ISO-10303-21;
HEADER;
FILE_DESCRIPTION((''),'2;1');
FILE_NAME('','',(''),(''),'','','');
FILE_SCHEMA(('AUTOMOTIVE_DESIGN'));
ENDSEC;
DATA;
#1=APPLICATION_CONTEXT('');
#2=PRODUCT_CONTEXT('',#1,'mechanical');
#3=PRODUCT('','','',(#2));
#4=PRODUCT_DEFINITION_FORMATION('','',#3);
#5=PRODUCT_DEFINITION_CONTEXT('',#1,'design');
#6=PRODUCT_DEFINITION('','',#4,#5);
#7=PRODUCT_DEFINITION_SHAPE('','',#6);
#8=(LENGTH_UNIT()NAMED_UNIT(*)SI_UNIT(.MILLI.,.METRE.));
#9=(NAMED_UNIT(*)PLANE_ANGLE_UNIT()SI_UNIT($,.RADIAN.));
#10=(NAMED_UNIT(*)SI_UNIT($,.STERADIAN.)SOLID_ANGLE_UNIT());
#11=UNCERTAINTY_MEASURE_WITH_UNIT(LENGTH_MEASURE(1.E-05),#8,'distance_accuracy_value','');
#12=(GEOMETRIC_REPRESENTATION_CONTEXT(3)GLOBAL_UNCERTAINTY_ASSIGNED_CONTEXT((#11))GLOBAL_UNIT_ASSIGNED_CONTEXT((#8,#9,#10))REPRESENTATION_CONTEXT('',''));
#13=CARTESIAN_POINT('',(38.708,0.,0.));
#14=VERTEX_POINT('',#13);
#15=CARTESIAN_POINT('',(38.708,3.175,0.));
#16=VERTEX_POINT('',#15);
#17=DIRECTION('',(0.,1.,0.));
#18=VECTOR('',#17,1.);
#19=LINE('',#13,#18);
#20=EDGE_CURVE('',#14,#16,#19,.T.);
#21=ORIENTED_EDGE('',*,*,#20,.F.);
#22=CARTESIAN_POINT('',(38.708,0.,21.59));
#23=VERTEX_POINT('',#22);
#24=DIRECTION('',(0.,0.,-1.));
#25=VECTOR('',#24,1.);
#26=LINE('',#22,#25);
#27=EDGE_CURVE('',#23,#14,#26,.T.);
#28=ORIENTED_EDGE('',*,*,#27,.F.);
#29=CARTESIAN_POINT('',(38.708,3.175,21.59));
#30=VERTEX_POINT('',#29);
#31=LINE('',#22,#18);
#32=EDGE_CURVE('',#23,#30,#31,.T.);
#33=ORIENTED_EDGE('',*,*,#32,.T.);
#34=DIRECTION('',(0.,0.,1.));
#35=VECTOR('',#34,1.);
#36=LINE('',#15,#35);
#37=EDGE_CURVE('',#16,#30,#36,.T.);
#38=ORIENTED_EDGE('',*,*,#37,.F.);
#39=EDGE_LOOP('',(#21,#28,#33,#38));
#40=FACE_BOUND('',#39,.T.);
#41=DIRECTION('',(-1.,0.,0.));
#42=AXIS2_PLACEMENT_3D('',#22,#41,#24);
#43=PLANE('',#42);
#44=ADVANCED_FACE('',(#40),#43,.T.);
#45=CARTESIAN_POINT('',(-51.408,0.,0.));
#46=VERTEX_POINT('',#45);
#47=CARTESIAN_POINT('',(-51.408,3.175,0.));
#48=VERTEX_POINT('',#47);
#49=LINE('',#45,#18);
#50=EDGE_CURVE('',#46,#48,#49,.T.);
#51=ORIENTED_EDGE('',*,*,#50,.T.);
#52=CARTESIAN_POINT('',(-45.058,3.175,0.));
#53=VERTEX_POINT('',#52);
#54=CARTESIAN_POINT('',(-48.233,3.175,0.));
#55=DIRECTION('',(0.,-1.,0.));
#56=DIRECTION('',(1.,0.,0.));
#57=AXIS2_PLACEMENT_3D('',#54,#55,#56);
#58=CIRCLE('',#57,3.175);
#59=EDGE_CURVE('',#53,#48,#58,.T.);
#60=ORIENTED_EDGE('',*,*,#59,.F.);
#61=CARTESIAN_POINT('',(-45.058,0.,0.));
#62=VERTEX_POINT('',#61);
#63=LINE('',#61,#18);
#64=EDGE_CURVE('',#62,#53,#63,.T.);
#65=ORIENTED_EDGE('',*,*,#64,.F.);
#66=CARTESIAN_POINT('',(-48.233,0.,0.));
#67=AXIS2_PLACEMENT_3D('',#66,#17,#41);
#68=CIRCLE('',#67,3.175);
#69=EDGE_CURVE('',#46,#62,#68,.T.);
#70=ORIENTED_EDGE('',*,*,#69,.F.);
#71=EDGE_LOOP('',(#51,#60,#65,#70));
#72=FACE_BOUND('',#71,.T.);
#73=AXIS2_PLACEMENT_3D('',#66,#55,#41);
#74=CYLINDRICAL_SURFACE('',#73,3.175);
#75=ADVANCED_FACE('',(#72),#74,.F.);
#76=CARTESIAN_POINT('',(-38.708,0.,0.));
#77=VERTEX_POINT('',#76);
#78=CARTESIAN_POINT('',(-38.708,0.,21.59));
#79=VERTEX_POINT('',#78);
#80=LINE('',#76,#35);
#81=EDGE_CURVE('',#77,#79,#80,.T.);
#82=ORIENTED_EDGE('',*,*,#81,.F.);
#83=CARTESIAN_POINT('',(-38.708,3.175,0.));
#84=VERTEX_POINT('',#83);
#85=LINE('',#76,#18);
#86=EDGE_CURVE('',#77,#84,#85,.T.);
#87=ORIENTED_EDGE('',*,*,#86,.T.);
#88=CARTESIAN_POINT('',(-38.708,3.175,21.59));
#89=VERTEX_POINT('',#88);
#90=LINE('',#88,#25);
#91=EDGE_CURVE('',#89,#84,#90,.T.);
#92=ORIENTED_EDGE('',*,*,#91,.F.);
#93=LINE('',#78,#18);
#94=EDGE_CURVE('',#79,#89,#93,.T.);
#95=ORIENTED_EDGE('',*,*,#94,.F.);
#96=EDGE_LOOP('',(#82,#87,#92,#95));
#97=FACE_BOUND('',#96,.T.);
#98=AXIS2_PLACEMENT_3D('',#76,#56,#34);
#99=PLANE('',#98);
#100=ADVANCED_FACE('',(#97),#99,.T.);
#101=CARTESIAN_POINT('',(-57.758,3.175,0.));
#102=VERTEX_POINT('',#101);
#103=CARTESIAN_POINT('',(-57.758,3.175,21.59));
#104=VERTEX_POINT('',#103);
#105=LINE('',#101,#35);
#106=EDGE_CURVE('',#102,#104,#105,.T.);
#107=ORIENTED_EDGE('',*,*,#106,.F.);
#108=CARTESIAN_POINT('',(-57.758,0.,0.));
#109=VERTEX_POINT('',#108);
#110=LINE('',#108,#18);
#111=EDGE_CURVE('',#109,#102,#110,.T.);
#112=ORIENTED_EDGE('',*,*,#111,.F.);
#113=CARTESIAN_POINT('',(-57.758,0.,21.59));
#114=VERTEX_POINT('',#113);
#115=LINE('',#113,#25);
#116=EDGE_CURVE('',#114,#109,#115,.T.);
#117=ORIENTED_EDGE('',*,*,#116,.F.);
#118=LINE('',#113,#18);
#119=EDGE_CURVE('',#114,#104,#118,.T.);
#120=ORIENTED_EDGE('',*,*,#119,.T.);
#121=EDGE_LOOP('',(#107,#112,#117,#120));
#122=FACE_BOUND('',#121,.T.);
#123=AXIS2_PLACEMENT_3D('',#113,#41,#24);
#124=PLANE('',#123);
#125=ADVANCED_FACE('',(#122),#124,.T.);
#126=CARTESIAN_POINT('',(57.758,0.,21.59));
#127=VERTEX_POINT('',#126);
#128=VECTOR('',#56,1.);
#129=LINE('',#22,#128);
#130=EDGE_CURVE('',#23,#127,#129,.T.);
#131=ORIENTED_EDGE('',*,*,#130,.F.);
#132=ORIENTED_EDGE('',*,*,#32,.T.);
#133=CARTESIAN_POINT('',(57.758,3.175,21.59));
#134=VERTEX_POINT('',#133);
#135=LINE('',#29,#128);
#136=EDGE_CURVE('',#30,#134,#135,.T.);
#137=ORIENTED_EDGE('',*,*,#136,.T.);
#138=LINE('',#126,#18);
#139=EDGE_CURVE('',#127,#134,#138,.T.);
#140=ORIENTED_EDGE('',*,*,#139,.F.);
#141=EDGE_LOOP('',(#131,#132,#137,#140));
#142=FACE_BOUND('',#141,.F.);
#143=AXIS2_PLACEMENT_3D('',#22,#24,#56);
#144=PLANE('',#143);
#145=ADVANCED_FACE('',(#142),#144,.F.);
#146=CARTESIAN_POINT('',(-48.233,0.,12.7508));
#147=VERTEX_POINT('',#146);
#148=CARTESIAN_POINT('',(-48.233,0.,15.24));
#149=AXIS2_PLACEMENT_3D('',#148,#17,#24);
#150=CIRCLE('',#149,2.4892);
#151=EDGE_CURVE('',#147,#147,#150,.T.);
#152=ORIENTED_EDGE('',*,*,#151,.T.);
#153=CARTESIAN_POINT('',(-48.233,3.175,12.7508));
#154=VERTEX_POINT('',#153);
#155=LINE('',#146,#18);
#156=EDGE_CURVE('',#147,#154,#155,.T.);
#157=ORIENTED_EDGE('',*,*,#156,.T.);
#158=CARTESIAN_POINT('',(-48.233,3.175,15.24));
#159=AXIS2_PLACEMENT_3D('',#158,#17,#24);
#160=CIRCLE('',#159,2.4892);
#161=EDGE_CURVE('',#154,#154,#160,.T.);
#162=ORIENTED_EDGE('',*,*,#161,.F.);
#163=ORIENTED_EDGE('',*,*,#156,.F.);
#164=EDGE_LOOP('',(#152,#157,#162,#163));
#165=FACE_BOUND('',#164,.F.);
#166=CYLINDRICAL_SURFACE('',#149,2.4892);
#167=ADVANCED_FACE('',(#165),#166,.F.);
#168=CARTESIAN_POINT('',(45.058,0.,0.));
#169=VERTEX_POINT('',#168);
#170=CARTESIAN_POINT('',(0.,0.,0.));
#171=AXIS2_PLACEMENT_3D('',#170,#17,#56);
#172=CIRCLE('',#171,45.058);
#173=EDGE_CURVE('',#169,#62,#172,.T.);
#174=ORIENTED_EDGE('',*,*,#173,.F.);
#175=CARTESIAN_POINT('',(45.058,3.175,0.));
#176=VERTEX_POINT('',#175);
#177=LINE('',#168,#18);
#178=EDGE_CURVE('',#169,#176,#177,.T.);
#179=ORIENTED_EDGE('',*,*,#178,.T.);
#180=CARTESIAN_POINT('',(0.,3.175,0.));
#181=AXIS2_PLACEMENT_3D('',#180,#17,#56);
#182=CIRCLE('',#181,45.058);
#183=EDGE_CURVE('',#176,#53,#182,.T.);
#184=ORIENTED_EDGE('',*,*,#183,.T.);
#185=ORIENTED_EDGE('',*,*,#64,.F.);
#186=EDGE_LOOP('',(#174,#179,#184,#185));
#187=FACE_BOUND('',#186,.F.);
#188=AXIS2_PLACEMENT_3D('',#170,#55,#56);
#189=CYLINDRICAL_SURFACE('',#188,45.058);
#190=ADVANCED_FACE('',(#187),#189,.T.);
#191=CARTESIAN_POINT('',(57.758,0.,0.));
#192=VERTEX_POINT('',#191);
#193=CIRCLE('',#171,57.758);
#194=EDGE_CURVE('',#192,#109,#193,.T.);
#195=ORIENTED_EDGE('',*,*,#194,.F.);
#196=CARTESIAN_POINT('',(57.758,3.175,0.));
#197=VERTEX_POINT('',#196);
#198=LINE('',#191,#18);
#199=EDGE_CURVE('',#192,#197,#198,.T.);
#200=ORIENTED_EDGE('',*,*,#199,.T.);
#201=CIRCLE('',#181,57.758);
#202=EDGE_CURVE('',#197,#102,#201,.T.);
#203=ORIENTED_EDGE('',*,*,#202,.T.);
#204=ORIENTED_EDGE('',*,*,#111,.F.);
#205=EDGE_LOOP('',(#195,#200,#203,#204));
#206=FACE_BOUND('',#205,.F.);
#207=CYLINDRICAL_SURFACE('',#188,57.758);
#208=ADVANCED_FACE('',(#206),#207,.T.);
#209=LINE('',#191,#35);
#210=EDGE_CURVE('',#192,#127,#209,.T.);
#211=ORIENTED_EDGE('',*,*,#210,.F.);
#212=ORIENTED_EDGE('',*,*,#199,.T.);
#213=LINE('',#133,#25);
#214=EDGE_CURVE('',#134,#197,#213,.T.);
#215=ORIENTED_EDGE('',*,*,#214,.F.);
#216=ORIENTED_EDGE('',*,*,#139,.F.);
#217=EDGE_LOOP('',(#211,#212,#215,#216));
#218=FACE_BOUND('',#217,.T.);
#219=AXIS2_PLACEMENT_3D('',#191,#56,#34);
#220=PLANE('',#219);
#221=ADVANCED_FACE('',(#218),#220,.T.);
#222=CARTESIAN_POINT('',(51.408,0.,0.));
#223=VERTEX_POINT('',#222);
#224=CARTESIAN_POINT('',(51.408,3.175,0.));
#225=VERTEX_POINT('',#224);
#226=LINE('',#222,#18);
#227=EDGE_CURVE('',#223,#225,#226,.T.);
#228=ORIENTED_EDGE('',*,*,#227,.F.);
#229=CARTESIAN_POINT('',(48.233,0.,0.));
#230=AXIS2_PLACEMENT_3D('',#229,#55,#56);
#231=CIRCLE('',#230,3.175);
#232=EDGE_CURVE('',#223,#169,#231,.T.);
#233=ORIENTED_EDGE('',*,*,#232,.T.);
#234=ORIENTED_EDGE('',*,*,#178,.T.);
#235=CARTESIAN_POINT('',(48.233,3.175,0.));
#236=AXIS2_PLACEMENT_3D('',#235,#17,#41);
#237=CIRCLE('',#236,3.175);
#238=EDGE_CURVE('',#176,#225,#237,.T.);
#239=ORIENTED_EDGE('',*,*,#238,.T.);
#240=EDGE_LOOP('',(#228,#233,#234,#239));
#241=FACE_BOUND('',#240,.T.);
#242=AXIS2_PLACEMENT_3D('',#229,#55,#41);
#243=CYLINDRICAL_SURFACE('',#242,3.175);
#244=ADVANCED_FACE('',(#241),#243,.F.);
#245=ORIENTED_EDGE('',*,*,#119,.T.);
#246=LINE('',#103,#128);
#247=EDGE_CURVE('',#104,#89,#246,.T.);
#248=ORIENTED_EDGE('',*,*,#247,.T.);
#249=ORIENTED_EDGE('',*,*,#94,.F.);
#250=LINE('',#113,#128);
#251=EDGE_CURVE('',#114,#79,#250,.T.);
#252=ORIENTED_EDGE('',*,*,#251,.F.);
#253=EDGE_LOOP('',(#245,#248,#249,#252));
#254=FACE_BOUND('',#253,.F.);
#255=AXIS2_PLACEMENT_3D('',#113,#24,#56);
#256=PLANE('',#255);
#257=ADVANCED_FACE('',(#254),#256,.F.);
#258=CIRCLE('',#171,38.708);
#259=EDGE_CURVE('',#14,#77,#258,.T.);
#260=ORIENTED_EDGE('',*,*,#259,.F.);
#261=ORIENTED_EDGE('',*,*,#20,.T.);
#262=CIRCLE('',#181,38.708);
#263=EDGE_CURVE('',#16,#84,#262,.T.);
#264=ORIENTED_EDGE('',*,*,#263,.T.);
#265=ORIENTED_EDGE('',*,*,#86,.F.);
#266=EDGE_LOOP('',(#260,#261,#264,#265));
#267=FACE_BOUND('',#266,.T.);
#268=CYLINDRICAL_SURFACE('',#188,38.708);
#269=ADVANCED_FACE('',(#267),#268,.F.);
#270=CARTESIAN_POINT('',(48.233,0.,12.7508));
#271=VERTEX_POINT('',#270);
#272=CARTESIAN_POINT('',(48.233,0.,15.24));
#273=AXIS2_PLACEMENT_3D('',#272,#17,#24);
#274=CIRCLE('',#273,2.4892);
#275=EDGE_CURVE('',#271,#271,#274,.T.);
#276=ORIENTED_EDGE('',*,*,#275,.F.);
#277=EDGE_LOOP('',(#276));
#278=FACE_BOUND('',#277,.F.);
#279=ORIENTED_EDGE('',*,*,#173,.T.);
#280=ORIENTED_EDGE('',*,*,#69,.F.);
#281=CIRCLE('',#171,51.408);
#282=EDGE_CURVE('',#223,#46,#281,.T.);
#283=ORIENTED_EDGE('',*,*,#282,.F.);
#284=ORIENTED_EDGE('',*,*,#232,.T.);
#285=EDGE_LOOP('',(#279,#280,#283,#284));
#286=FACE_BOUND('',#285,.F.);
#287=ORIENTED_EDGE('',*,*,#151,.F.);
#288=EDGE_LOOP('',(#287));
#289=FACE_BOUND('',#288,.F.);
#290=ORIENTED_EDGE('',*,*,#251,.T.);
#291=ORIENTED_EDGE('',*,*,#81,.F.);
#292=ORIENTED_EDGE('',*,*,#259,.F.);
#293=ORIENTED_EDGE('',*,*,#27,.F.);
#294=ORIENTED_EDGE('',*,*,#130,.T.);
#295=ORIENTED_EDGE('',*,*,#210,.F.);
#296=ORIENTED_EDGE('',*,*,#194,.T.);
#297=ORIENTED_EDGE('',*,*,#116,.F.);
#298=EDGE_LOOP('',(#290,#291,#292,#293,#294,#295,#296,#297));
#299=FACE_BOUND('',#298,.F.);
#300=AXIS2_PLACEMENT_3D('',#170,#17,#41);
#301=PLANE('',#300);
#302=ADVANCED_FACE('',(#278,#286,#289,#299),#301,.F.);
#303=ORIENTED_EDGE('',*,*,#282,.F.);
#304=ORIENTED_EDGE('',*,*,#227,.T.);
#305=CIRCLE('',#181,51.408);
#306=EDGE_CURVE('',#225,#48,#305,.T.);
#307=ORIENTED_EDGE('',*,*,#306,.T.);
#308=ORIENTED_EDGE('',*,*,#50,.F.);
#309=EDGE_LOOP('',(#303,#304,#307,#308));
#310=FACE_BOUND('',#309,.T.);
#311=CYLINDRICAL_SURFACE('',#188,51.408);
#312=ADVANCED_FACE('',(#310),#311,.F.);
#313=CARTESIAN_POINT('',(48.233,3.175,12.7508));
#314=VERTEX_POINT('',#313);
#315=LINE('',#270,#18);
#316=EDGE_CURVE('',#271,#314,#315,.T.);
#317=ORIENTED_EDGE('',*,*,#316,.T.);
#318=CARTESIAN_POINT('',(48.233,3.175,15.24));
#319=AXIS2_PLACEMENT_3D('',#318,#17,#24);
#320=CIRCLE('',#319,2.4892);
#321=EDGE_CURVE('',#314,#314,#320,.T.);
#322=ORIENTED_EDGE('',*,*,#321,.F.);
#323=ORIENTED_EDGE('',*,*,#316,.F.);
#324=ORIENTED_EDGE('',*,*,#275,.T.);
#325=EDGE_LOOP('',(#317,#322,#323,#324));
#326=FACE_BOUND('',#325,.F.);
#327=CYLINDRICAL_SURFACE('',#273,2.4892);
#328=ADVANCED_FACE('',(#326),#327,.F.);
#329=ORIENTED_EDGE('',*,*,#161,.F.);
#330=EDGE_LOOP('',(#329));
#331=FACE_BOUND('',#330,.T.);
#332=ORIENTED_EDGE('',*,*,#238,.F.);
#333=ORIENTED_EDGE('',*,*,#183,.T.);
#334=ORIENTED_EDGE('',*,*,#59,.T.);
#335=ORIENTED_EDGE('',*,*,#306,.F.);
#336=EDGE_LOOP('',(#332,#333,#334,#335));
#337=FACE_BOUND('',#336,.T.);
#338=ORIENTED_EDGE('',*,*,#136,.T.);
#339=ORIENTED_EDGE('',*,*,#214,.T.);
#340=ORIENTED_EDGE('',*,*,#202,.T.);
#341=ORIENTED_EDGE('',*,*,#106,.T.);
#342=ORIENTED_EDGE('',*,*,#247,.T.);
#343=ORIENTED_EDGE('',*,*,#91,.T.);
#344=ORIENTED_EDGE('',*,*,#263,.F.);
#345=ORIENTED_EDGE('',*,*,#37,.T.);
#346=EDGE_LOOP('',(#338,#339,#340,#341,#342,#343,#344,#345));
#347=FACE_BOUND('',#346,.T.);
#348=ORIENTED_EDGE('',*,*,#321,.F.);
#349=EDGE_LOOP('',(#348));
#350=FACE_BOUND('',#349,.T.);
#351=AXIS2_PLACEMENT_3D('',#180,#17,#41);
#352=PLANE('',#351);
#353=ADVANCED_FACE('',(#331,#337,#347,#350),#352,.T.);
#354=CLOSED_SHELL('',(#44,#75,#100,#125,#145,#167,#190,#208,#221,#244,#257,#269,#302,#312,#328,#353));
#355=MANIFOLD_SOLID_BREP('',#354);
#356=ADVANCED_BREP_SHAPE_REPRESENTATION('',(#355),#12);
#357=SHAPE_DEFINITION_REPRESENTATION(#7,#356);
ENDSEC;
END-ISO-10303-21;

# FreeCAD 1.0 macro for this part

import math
import FreeCAD as App
import Part
import Sketcher
from FreeCAD import Vector
Q = App.Units.Quantity

doc = App.newDocument("Part")
body = doc.addObject("PartDesign::Body", "Body")

sketch1 = body.newObject("Sketcher::SketchObject", "Sketch")
sketch1.AttachmentSupport = (doc.getObject("XZ_Plane"), [""])
sketch1.MapMode = "FlatFace"
sketch1.addGeometry(Part.ArcOfCircle(Part.Circle(Vector(0, 0, 0), Vector(0, 0, 1), 38.708), math.radians(180), math.radians(360)), False)
sketch1.addGeometry(Part.LineSegment(Vector(38.708, 0, 0), Vector(38.708, 21.59, 0)), False)
sketch1.addGeometry(Part.LineSegment(Vector(38.708, 21.59, 0), Vector(57.758, 21.59, 0)), False)
sketch1.addGeometry(Part.LineSegment(Vector(57.758, 21.59, 0), Vector(57.758, 0, 0)), False)
sketch1.addGeometry(Part.ArcOfCircle(Part.Circle(Vector(0, 0, 0), Vector(0, 0, 1), 57.758), math.radians(180), math.radians(360)), False)
sketch1.addGeometry(Part.LineSegment(Vector(-57.758, 0, 0), Vector(-57.758, 21.59, 0)), False)
sketch1.addGeometry(Part.LineSegment(Vector(-57.758, 21.59, 0), Vector(-38.708, 21.59, 0)), False)
sketch1.addGeometry(Part.LineSegment(Vector(-38.708, 21.59, 0), Vector(-38.708, 0, 0)), False)
sketch1.addGeometry(Part.ArcOfCircle(Part.Circle(Vector(0, 0, 0), Vector(0, 0, 1), 45.058), math.radians(180), math.radians(360)), False)
sketch1.addGeometry(Part.ArcOfCircle(Part.Circle(Vector(-48.233, 0, 0), Vector(0, 0, 1), 3.175), math.radians(0), math.radians(180)), False)
sketch1.addGeometry(Part.ArcOfCircle(Part.Circle(Vector(0, 0, 0), Vector(0, 0, 1), 51.408), math.radians(180), math.radians(360)), False)
sketch1.addGeometry(Part.ArcOfCircle(Part.Circle(Vector(48.233, 0, 0), Vector(0, 0, 1), 3.175), math.radians(0), math.radians(180)), False)
sketch1.addConstraint(Sketcher.Constraint("Tangent", 0, 2, 1, 1))
sketch1.addConstraint(Sketcher.Constraint("Coincident", 1, 2, 2, 1))
sketch1.addConstraint(Sketcher.Constraint("Coincident", 2, 2, 3, 1))
sketch1.addConstraint(Sketcher.Constraint("Tangent", 3, 2, 4, 2))
sketch1.addConstraint(Sketcher.Constraint("Tangent", 4, 1, 5, 1))
sketch1.addConstraint(Sketcher.Constraint("Coincident", 5, 2, 6, 1))
sketch1.addConstraint(Sketcher.Constraint("Coincident", 6, 2, 7, 1))
sketch1.addConstraint(Sketcher.Constraint("Tangent", 7, 2, 0, 1))
sketch1.addConstraint(Sketcher.Constraint("Tangent", 8, 1, 9, 1))
sketch1.addConstraint(Sketcher.Constraint("Tangent", 9, 2, 10, 1))
sketch1.addConstraint(Sketcher.Constraint("Tangent", 10, 2, 11, 1))
sketch1.addConstraint(Sketcher.Constraint("Tangent", 11, 2, 8, 2))
sketch1.addConstraint(Sketcher.Constraint("Vertical", 1))
sketch1.addConstraint(Sketcher.Constraint("Horizontal", 2))
sketch1.addConstraint(Sketcher.Constraint("Vertical", 3))
sketch1.addConstraint(Sketcher.Constraint("Vertical", 5))
sketch1.addConstraint(Sketcher.Constraint("Horizontal", 6))
sketch1.addConstraint(Sketcher.Constraint("Vertical", 7))
sketch1.addConstraint(Sketcher.Constraint("Coincident", 0, 3, -1, 1))
sketch1.addConstraint(Sketcher.Constraint("Coincident", 4, 3, -1, 1))
sketch1.addConstraint(Sketcher.Constraint("Coincident", 8, 3, -1, 1))
sketch1.addConstraint(Sketcher.Constraint("Coincident", 10, 3, -1, 1))
sketch1.addConstraint(Sketcher.Constraint("PointOnObject", 9, 3, -1))
sketch1.addConstraint(Sketcher.Constraint("PointOnObject", 11, 3, -1))
sketch1.addConstraint(Sketcher.Constraint("Horizontal", 2, 2, 5, 2))
sketch1.addConstraint(Sketcher.Constraint("Radius", 9, Q("0.125 in")))
sketch1.addConstraint(Sketcher.Constraint("DistanceX", 8, 1, 7, 2, Q("0.25 in")))
sketch1.addConstraint(Sketcher.Constraint("DistanceX", 4, 1, 9, 2, Q("0.25 in")))
sketch1.addConstraint(Sketcher.Constraint("DistanceY", 1, 1, 1, 2, Q("0.85 in")))
sketch1.addConstraint(Sketcher.Constraint("Radius", 0, Q("38.708 mm")))
pad1 = body.newObject("PartDesign::Pad", "Pad")
pad1.Profile = sketch1
pad1.Length = Q("0.125 in")
pad1.Reversed = True

sketch2 = body.newObject("Sketcher::SketchObject", "Sketch001")
sketch2.AttachmentSupport = (doc.getObject("XZ_Plane"), [""])
sketch2.MapMode = "FlatFace"
sketch2.addGeometry(Part.Circle(Vector(48.233, 15.24, 0), Vector(0, 0, 1), 2.4892), False)
sketch2.addGeometry(Part.Circle(Vector(-48.233, 15.24, 0), Vector(0, 0, 1), 2.4892), False)
sketch2.addConstraint(Sketcher.Constraint("Equal", 0, 1))
sketch2.addConstraint(Sketcher.Constraint("Symmetric", 0, 3, 1, 3, -2))
sketch2.addConstraint(Sketcher.Constraint("Diameter", 0, Q("0.196 in")))
sketch2.addConstraint(Sketcher.Constraint("DistanceY", -1, 1, 0, 3, Q("0.6 in")))
sketch2.addConstraint(Sketcher.Constraint("DistanceX", -1, 1, 0, 3, Q("48.233 mm")))
doc.recompute()
hole = body.newObject("PartDesign::Hole", "Hole")
hole.Profile = sketch2
hole.ThreadType = "None"
hole.Diameter = Q("0.196 in")
hole.DepthType = "ThroughAll"

doc.recompute()
